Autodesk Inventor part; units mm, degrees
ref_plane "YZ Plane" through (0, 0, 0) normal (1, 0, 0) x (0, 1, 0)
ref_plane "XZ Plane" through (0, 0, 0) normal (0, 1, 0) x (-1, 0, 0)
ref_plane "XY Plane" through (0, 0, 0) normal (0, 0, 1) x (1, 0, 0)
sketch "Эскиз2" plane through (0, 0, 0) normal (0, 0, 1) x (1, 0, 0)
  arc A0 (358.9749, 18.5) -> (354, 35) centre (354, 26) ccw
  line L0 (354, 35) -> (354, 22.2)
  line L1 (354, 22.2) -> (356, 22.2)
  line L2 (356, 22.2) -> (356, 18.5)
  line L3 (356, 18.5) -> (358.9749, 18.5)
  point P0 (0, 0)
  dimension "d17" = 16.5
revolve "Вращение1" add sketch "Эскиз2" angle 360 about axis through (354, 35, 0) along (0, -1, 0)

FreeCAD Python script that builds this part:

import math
import FreeCAD as App
import Part
import Sketcher
from FreeCAD import Vector
Q = App.Units.Quantity

doc = App.newDocument("Part")
params = doc.addObject("Spreadsheet::Sheet", "Params")
for row, (alias, value) in enumerate([
    ("sketch1_height", "16.5 mm"),
    ("sketch1_radius", "9 mm"),
    ("sketch1_width", "2 mm"),
    ("sketch1_height2", "12.8 mm"),
    ("revolution_angle", "360 deg"),
], start=1):
    params.set(f"A{row}", alias)
    params.set(f"B{row}", "=" + value)
    params.setAlias(f"B{row}", alias)

body = doc.addObject("PartDesign::Body", "Body")

sketch1 = body.newObject("Sketcher::SketchObject", "Sketch")
sketch1.AttachmentSupport = (doc.getObject("XY_Plane"), [""])
sketch1.MapMode = "FlatFace"
sketch1.addGeometry(Part.LineSegment(Vector(356, 18.5, 0), Vector(358.9749, 18.5, 0)), False)
sketch1.addGeometry(Part.ArcOfCircle(Part.Circle(Vector(354, 26, 0), Vector(0, 0, 1), 8.999979), math.radians(-56.442888), math.radians(90)), False)
sketch1.addGeometry(Part.LineSegment(Vector(354, 35, 0), Vector(354, 22.2, 0)), False)
sketch1.addGeometry(Part.LineSegment(Vector(354, 22.2, 0), Vector(356, 22.2, 0)), False)
sketch1.addGeometry(Part.LineSegment(Vector(356, 22.2, 0), Vector(356, 18.5, 0)), False)
sketch1.addGeometry(Part.LineSegment(Vector(354, 35, 0), Vector(354, 18.5, 0)), True)
sketch1.addConstraint(Sketcher.Constraint("Coincident", 0, 2, 1, 1))
sketch1.addConstraint(Sketcher.Constraint("Coincident", 1, 2, 2, 1))
sketch1.addConstraint(Sketcher.Constraint("Coincident", 2, 2, 3, 1))
sketch1.addConstraint(Sketcher.Constraint("Coincident", 3, 2, 4, 1))
sketch1.addConstraint(Sketcher.Constraint("Coincident", 4, 2, 0, 1))
sketch1.addConstraint(Sketcher.Constraint("Horizontal", 0))
sketch1.addConstraint(Sketcher.Constraint("Vertical", 2))
sketch1.addConstraint(Sketcher.Constraint("Horizontal", 3))
sketch1.addConstraint(Sketcher.Constraint("Vertical", 4))
sketch1.addConstraint(Sketcher.Constraint("Vertical", 5))
sketch1.addConstraint(Sketcher.Constraint("Coincident", 5, 1, 1, 2))
sketch1.addConstraint(Sketcher.Constraint("Horizontal", 4, 2, 5, 2))
sketch1.addConstraint(Sketcher.Constraint("DistanceY", 5, 2, 5, 1, Q("16.5 mm")))
sketch1.addConstraint(Sketcher.Constraint("Radius", 1, Q("9 mm")))
sketch1.addConstraint(Sketcher.Constraint("DistanceX", 3, 1, 3, 2, Q("2 mm")))
sketch1.addConstraint(Sketcher.Constraint("DistanceY", 2, 2, 2, 1, Q("12.8 mm")))
sketch1.addConstraint(Sketcher.Constraint("DistanceX", -1, 1, 1, 3, Q("354 mm")))
sketch1.addConstraint(Sketcher.Constraint("DistanceY", -1, 1, 1, 3, Q("26 mm")))
sketch1.addConstraint(Sketcher.Constraint("DistanceX", -1, 1, 1, 2, Q("354 mm")))
sketch1.setExpression("Constraints[12]", "Params.sketch1_height")
sketch1.setExpression("Constraints[13]", "Params.sketch1_radius")
sketch1.setExpression("Constraints[14]", "Params.sketch1_width")
sketch1.setExpression("Constraints[15]", "Params.sketch1_height2")
revolution = body.newObject("PartDesign::Revolution", "Revolution")
revolution.Profile = sketch1
revolution.ReferenceAxis = (sketch1, ["Axis0"])
revolution.setExpression("Angle", "Params.revolution_angle")

doc.recompute()
